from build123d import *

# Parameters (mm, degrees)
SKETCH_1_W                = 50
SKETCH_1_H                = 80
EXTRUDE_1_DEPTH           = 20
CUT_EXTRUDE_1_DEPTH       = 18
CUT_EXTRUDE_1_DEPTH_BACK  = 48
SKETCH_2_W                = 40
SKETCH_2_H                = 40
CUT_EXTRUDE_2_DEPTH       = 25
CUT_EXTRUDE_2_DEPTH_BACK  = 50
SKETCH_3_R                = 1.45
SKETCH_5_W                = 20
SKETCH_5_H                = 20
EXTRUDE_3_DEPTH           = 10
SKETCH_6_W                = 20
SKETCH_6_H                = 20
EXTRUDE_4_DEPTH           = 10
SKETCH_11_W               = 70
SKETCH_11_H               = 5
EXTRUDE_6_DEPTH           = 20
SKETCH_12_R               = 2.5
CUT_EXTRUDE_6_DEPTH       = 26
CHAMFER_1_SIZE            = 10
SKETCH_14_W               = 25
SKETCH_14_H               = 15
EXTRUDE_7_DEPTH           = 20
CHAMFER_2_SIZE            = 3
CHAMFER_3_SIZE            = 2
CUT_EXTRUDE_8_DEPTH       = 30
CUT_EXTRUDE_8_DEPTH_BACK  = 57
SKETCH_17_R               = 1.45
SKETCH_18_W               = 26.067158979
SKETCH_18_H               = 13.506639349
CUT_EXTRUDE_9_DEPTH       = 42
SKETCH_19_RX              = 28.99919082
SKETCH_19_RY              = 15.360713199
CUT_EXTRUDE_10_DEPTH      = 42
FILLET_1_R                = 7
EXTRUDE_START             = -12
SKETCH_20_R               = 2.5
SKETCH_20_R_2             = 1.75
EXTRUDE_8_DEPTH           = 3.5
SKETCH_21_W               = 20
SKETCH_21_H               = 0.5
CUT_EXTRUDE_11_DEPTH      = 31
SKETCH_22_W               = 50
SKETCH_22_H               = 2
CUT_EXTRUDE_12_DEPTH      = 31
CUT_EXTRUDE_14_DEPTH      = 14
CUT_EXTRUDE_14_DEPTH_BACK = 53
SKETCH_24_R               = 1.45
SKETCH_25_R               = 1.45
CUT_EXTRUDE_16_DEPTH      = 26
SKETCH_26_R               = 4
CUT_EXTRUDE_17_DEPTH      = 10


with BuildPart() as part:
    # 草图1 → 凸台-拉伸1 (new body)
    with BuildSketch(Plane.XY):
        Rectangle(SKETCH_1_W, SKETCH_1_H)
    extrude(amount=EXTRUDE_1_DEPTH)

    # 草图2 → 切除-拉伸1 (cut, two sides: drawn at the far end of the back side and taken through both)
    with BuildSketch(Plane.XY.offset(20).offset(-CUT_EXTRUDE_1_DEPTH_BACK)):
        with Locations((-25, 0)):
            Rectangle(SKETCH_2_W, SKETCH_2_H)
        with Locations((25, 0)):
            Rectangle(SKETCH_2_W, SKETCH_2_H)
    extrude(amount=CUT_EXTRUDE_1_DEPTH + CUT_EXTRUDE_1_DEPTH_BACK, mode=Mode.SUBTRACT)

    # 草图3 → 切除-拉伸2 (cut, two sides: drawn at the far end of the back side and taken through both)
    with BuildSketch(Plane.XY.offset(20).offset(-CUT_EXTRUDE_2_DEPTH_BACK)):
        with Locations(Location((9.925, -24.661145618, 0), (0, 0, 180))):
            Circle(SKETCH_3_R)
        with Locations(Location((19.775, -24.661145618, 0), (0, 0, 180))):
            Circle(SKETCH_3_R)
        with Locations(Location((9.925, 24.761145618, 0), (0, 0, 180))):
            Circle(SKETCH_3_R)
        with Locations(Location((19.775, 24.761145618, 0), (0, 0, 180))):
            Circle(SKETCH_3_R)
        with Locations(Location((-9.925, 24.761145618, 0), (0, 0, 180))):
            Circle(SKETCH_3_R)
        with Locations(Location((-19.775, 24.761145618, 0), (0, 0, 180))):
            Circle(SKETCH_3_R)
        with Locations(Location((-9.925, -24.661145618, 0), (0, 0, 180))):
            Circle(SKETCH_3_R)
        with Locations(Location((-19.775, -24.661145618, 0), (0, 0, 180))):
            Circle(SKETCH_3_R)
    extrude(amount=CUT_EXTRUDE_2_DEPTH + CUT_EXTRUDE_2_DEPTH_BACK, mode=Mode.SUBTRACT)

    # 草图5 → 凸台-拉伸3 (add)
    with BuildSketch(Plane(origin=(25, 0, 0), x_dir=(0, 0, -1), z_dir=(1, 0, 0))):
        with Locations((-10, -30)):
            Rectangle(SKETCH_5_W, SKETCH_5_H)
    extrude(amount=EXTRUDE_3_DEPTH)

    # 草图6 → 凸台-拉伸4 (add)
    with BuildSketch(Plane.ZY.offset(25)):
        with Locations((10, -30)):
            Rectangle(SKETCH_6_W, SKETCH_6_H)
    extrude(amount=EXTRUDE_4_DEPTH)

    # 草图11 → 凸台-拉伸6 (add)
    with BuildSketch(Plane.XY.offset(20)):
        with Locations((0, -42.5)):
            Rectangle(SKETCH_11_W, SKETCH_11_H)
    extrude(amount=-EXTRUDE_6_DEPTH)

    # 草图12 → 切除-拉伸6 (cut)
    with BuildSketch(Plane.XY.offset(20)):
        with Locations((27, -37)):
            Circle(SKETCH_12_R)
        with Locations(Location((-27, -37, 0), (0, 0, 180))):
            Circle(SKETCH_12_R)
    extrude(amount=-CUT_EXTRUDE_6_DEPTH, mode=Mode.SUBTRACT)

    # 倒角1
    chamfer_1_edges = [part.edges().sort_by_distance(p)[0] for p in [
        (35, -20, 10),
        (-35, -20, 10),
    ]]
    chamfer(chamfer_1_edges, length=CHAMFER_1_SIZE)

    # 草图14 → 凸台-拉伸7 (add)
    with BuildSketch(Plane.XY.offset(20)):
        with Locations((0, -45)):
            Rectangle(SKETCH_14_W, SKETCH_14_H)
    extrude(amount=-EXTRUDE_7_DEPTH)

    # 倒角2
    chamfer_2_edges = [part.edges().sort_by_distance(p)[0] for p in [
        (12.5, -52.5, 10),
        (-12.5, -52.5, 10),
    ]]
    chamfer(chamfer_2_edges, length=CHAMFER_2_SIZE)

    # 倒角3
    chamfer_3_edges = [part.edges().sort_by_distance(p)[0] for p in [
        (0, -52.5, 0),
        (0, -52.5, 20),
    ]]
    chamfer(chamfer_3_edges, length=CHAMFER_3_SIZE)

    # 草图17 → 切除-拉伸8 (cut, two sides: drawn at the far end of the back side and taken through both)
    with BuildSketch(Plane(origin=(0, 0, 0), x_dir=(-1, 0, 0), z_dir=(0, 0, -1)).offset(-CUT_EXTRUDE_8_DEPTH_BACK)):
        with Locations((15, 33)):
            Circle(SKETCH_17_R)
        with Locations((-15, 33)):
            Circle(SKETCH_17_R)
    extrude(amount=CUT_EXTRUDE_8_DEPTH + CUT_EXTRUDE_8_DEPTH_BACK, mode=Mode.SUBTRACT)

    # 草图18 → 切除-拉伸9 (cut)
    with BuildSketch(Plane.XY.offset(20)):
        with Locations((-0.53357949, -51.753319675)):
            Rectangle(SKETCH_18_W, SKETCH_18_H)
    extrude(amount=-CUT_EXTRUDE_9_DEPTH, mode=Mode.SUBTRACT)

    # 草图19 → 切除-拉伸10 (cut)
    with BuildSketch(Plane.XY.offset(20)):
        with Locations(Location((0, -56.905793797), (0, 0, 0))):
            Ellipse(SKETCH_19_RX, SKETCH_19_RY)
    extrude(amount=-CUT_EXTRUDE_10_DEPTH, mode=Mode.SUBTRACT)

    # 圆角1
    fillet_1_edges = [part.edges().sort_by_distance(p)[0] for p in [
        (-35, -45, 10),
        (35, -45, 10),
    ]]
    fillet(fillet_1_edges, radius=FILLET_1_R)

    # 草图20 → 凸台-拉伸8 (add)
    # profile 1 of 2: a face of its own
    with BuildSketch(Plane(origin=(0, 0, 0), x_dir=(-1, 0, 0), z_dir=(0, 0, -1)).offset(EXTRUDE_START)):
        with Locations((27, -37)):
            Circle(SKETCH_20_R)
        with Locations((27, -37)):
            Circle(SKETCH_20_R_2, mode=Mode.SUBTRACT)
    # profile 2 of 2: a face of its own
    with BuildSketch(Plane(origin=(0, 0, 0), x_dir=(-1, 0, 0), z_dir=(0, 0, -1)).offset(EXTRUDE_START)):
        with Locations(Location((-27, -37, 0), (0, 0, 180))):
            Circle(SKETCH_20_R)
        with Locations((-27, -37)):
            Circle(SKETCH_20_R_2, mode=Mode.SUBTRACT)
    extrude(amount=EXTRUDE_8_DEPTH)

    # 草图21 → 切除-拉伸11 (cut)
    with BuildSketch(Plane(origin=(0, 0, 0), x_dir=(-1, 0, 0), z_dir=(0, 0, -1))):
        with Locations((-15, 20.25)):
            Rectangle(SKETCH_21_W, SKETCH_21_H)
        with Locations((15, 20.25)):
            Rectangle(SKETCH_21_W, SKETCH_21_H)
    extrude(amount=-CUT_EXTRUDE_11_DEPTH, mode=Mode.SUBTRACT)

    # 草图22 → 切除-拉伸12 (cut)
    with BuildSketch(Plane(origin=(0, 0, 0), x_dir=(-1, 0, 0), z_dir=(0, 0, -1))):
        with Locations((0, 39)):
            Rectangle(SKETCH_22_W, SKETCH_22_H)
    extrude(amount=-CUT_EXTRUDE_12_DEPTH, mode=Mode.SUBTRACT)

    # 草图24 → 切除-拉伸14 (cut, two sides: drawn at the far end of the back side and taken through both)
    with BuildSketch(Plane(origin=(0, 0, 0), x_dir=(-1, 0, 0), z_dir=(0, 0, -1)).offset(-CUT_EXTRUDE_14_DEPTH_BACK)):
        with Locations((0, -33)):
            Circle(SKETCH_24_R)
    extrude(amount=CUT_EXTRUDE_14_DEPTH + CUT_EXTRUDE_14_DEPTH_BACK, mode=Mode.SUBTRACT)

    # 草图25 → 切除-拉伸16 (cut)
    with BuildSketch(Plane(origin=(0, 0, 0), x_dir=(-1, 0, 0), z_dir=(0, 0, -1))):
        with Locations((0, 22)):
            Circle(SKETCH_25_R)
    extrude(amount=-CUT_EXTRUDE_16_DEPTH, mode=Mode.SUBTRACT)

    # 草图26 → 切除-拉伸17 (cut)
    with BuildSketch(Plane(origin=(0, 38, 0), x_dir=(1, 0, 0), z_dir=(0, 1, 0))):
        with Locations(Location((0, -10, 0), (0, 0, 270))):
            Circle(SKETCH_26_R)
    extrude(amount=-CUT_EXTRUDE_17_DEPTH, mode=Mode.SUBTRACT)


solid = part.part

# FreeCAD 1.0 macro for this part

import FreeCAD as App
import Part
import Sketcher
Q = App.Units.Quantity


def edges_at(feature, points):
    """Names of the edges that pass closest to the given points."""
    edges = feature.Shape.Edges
    near = lambda p: min(range(len(edges)), key=lambda i: edges[i].distToShape(Part.Vertex(*p))[0])
    return sorted({f"Edge{near(p) + 1}" for p in points})


def add_polygon(sketch, points):
    """Adds a closed chain of lines whose ends are joined by coincident constraints."""
    first, n = sketch.GeometryCount, len(points)
    for a, b in zip(points, points[1:] + points[:1]):
        sketch.addGeometry(Part.LineSegment(App.Vector(*a, 0), App.Vector(*b, 0)), False)
    for i in range(n):
        sketch.addConstraint(Sketcher.Constraint("Coincident", first + i, 2, first + (i + 1) % n, 1))

doc = App.newDocument("Part")
body = doc.addObject("PartDesign::Body", "Body")

# Sketch on XY plane
sketch1 = body.newObject("Sketcher::SketchObject", "Sketch")
sketch1.AttachmentSupport = (doc.getObject("XY_Plane"), [""])
sketch1.MapMode = "FlatFace"
add_polygon(sketch1, [(-25, 40), (-25, -40), (25, -40), (25, 40)])  # lines 0-3
sketch1.addConstraint(Sketcher.Constraint("Vertical", 0))
sketch1.addConstraint(Sketcher.Constraint("Horizontal", 1))
sketch1.addConstraint(Sketcher.Constraint("Vertical", 2))
sketch1.addConstraint(Sketcher.Constraint("Horizontal", 3))
sketch1.addConstraint(Sketcher.Constraint("Symmetric", 0, 2, 2, 2, -1, 1))
sketch1.addConstraint(Sketcher.Constraint("DistanceX", 1, 1, 1, 2, Q("50 mm")))
sketch1.addConstraint(Sketcher.Constraint("DistanceY", 0, 2, 0, 1, Q("80 mm")))
pad1 = body.newObject("PartDesign::Pad", "Pad")
pad1.Profile = sketch1
pad1.Length = 20

# Sketch on XY plane
sketch2 = body.newObject("Sketcher::SketchObject", "Sketch001")
sketch2.AttachmentSupport = (doc.getObject("XY_Plane"), [""])
sketch2.MapMode = "FlatFace"
sketch2.AttachmentOffset = App.Placement(App.Vector(0, 0, 20), App.Rotation())
add_polygon(sketch2, [(-45, 20), (-45, -20), (-5, -20), (-5, 20)])  # lines 0-3
add_polygon(sketch2, [(5, 20), (5, -20), (45, -20), (45, 20)])  # lines 4-7
sketch2.addConstraint(Sketcher.Constraint("Vertical", 0))
sketch2.addConstraint(Sketcher.Constraint("Horizontal", 1))
sketch2.addConstraint(Sketcher.Constraint("Vertical", 2))
sketch2.addConstraint(Sketcher.Constraint("Horizontal", 3))
sketch2.addConstraint(Sketcher.Constraint("Vertical", 4))
sketch2.addConstraint(Sketcher.Constraint("Horizontal", 5))
sketch2.addConstraint(Sketcher.Constraint("Vertical", 6))
sketch2.addConstraint(Sketcher.Constraint("Horizontal", 7))
sketch2.addConstraint(Sketcher.Constraint("Symmetric", 2, 2, 4, 2, -1, 1))
sketch2.addConstraint(Sketcher.Constraint("Symmetric", 0, 2, 6, 2, -1, 1))
sketch2.addConstraint(Sketcher.Constraint("Horizontal", 1, 2, 4, 2))
sketch2.addConstraint(Sketcher.Constraint("Equal", 7, 0))
sketch2.addConstraint(Sketcher.Constraint("DistanceX", 1, 1, 1, 2, Q("40 mm")))
sketch2.addConstraint(Sketcher.Constraint("DistanceX", 0, 2, -1, 1, Q("45 mm")))
pocket1 = body.newObject("PartDesign::Pocket", "Pocket")
pocket1.Profile = sketch2
pocket1.Type = "ThroughAll"
pocket1.Midplane = True

# Sketch on XY plane
sketch3 = body.newObject("Sketcher::SketchObject", "Sketch002")
sketch3.AttachmentSupport = (doc.getObject("XY_Plane"), [""])
sketch3.MapMode = "FlatFace"
sketch3.AttachmentOffset = App.Placement(App.Vector(0, 0, 20), App.Rotation())
sketch3.addGeometry(Part.Circle(App.Vector(9.925, -24.661146, 0), App.Vector(0, 0, 1), 1.45), False)
sketch3.addGeometry(Part.Circle(App.Vector(19.775, -24.661146, 0), App.Vector(0, 0, 1), 1.45), False)
sketch3.addGeometry(Part.Circle(App.Vector(9.925, 24.761146, 0), App.Vector(0, 0, 1), 1.45), False)
sketch3.addGeometry(Part.Circle(App.Vector(19.775, 24.761146, 0), App.Vector(0, 0, 1), 1.45), False)
sketch3.addGeometry(Part.Circle(App.Vector(-9.925, 24.761146, 0), App.Vector(0, 0, 1), 1.45), False)
sketch3.addGeometry(Part.Circle(App.Vector(-19.775, 24.761146, 0), App.Vector(0, 0, 1), 1.45), False)
sketch3.addGeometry(Part.Circle(App.Vector(-9.925, -24.661146, 0), App.Vector(0, 0, 1), 1.45), False)
sketch3.addGeometry(Part.Circle(App.Vector(-19.775, -24.661146, 0), App.Vector(0, 0, 1), 1.45), False)
sketch3.addConstraint(Sketcher.Constraint("Equal", 0, 1))
sketch3.addConstraint(Sketcher.Constraint("Equal", 1, 2))
sketch3.addConstraint(Sketcher.Constraint("Equal", 2, 3))
sketch3.addConstraint(Sketcher.Constraint("Equal", 3, 4))
sketch3.addConstraint(Sketcher.Constraint("Equal", 4, 5))
sketch3.addConstraint(Sketcher.Constraint("Equal", 5, 6))
sketch3.addConstraint(Sketcher.Constraint("Equal", 6, 7))
sketch3.addConstraint(Sketcher.Constraint("Symmetric", 2, 3, 4, 3, -2))
sketch3.addConstraint(Sketcher.Constraint("Symmetric", 3, 3, 5, 3, -2))
sketch3.addConstraint(Sketcher.Constraint("Symmetric", 0, 3, 6, 3, -2))
sketch3.addConstraint(Sketcher.Constraint("Symmetric", 1, 3, 7, 3, -2))
sketch3.addConstraint(Sketcher.Constraint("Horizontal", 0, 3, 1, 3))
sketch3.addConstraint(Sketcher.Constraint("Horizontal", 2, 3, 3, 3))
sketch3.addConstraint(Sketcher.Constraint("Vertical", 0, 3, 2, 3))
sketch3.addConstraint(Sketcher.Constraint("Vertical", 1, 3, 3, 3))
sketch3.addConstraint(Sketcher.Constraint("Diameter", 0, Q("2.9 mm")))
sketch3.addConstraint(Sketcher.Constraint("DistanceX", 4, 3, 3, 3, Q("29.7 mm")))
sketch3.addConstraint(Sketcher.Constraint("DistanceX", 0, 3, 1, 3, Q("9.85 mm")))
sketch3.addConstraint(Sketcher.Constraint("DistanceY", 0, 3, 2, 3, Q("49.422291 mm")))
sketch3.addConstraint(Sketcher.Constraint("DistanceY", 0, 3, -1, 1, Q("24.661146 mm")))
pocket2 = body.newObject("PartDesign::Pocket", "Pocket001")
pocket2.Profile = sketch3
pocket2.Type = "ThroughAll"
pocket2.Midplane = True

# Sketch on YZ plane
sketch4 = body.newObject("Sketcher::SketchObject", "Sketch003")
sketch4.AttachmentSupport = (doc.getObject("YZ_Plane"), [""])
sketch4.MapMode = "FlatFace"
sketch4.AttachmentOffset = App.Placement(App.Vector(0, 0, 25), App.Rotation())
add_polygon(sketch4, [(-20, 20), (-40, 20), (-40, 0), (-20, 0)])  # lines 0-3
sketch4.addConstraint(Sketcher.Constraint("Horizontal", 0))
sketch4.addConstraint(Sketcher.Constraint("Vertical", 1))
sketch4.addConstraint(Sketcher.Constraint("Horizontal", 2))
sketch4.addConstraint(Sketcher.Constraint("Vertical", 3))
sketch4.addConstraint(Sketcher.Constraint("PointOnObject", 1, 2, -1))
sketch4.addConstraint(Sketcher.Constraint("Equal", 2, 1))
sketch4.addConstraint(Sketcher.Constraint("DistanceX", 0, 2, 0, 1, Q("20 mm")))
sketch4.addConstraint(Sketcher.Constraint("DistanceX", 0, 2, -1, 1, Q("40 mm")))
pad2 = body.newObject("PartDesign::Pad", "Pad001")
pad2.Profile = sketch4
pad2.Length = 10

# Sketch on YZ plane
sketch5 = body.newObject("Sketcher::SketchObject", "Sketch004")
sketch5.AttachmentSupport = (doc.getObject("YZ_Plane"), [""])
sketch5.MapMode = "FlatFace"
sketch5.AttachmentOffset = App.Placement(App.Vector(0, 0, -25), App.Rotation())
add_polygon(sketch5, [(-20, 0), (-40, 0), (-40, 20), (-20, 20)])  # lines 0-3
sketch5.addConstraint(Sketcher.Constraint("Horizontal", 0))
sketch5.addConstraint(Sketcher.Constraint("Vertical", 1))
sketch5.addConstraint(Sketcher.Constraint("Horizontal", 2))
sketch5.addConstraint(Sketcher.Constraint("Vertical", 3))
sketch5.addConstraint(Sketcher.Constraint("PointOnObject", 0, 2, -1))
sketch5.addConstraint(Sketcher.Constraint("Equal", 2, 1))
sketch5.addConstraint(Sketcher.Constraint("DistanceX", 0, 2, 0, 1, Q("20 mm")))
sketch5.addConstraint(Sketcher.Constraint("DistanceX", 0, 2, -1, 1, Q("40 mm")))
pad3 = body.newObject("PartDesign::Pad", "Pad002")
pad3.Profile = sketch5
pad3.Length = 10
pad3.Reversed = True

# Sketch on XY plane
sketch6 = body.newObject("Sketcher::SketchObject", "Sketch005")
sketch6.AttachmentSupport = (doc.getObject("XY_Plane"), [""])
sketch6.MapMode = "FlatFace"
sketch6.AttachmentOffset = App.Placement(App.Vector(0, 0, 20), App.Rotation())
add_polygon(sketch6, [(-35, -40), (-35, -45), (35, -45), (35, -40)])  # lines 0-3
sketch6.addConstraint(Sketcher.Constraint("Vertical", 0))
sketch6.addConstraint(Sketcher.Constraint("Horizontal", 1))
sketch6.addConstraint(Sketcher.Constraint("Vertical", 2))
sketch6.addConstraint(Sketcher.Constraint("Horizontal", 3))
sketch6.addConstraint(Sketcher.Constraint("DistanceX", 1, 1, 1, 2, Q("70 mm")))
sketch6.addConstraint(Sketcher.Constraint("DistanceY", 0, 2, 0, 1, Q("5 mm")))
sketch6.addConstraint(Sketcher.Constraint("DistanceX", 0, 2, -1, 1, Q("35 mm")))
sketch6.addConstraint(Sketcher.Constraint("DistanceY", 0, 2, -1, 1, Q("45 mm")))
pad4 = body.newObject("PartDesign::Pad", "Pad003")
pad4.Profile = sketch6
pad4.Length = 20
pad4.Reversed = True

# Sketch on XY plane
sketch7 = body.newObject("Sketcher::SketchObject", "Sketch006")
sketch7.AttachmentSupport = (doc.getObject("XY_Plane"), [""])
sketch7.MapMode = "FlatFace"
sketch7.AttachmentOffset = App.Placement(App.Vector(0, 0, 20), App.Rotation())
sketch7.addGeometry(Part.Circle(App.Vector(27, -37, 0), App.Vector(0, 0, 1), 2.5), False)
sketch7.addGeometry(Part.Circle(App.Vector(-27, -37, 0), App.Vector(0, 0, 1), 2.5), False)
sketch7.addConstraint(Sketcher.Constraint("Equal", 0, 1))
sketch7.addConstraint(Sketcher.Constraint("Symmetric", 0, 3, 1, 3, -2))
sketch7.addConstraint(Sketcher.Constraint("Diameter", 0, Q("5 mm")))
sketch7.addConstraint(Sketcher.Constraint("DistanceX", -1, 1, 0, 3, Q("27 mm")))
sketch7.addConstraint(Sketcher.Constraint("DistanceY", 0, 3, -1, 1, Q("37 mm")))
pocket3 = body.newObject("PartDesign::Pocket", "Pocket002")
pocket3.Profile = sketch7
pocket3.Length = 26
doc.recompute()

chamfer = body.newObject("PartDesign::Chamfer", "Chamfer")
chamfer.Base = (pocket3, edges_at(pocket3, [(35, -20, 10), (-35, -20, 10)]))
chamfer.Size = 10

# Sketch on XY plane
sketch8 = body.newObject("Sketcher::SketchObject", "Sketch007")
sketch8.AttachmentSupport = (doc.getObject("XY_Plane"), [""])
sketch8.MapMode = "FlatFace"
sketch8.AttachmentOffset = App.Placement(App.Vector(0, 0, 20), App.Rotation())
add_polygon(sketch8, [(-12.5, -37.5), (-12.5, -52.5), (12.5, -52.5), (12.5, -37.5)])  # lines 0-3
sketch8.addConstraint(Sketcher.Constraint("Vertical", 0))
sketch8.addConstraint(Sketcher.Constraint("Horizontal", 1))
sketch8.addConstraint(Sketcher.Constraint("Vertical", 2))
sketch8.addConstraint(Sketcher.Constraint("Horizontal", 3))
sketch8.addConstraint(Sketcher.Constraint("DistanceX", 1, 1, 1, 2, Q("25 mm")))
sketch8.addConstraint(Sketcher.Constraint("DistanceY", 0, 2, 0, 1, Q("15 mm")))
sketch8.addConstraint(Sketcher.Constraint("DistanceX", 0, 2, -1, 1, Q("12.5 mm")))
sketch8.addConstraint(Sketcher.Constraint("DistanceY", 0, 2, -1, 1, Q("52.5 mm")))
pad5 = body.newObject("PartDesign::Pad", "Pad004")
pad5.Profile = sketch8
pad5.Length = 20
pad5.Reversed = True
doc.recompute()

chamfer2 = body.newObject("PartDesign::Chamfer", "Chamfer001")
chamfer2.Base = (pad5, edges_at(pad5, [(12.5, -52.5, 10), (-12.5, -52.5, 10)]))
chamfer2.Size = 3
doc.recompute()

chamfer3 = body.newObject("PartDesign::Chamfer", "Chamfer002")
chamfer3.Base = (chamfer2, edges_at(chamfer2, [(0, -52.5, 0), (0, -52.5, 20)]))
chamfer3.Size = 2

# Sketch on XY plane
sketch9 = body.newObject("Sketcher::SketchObject", "Sketch008")
sketch9.AttachmentSupport = (doc.getObject("XY_Plane"), [""])
sketch9.MapMode = "FlatFace"
sketch9.addGeometry(Part.Circle(App.Vector(-15, 33, 0), App.Vector(0, 0, 1), 1.45), False)
sketch9.addGeometry(Part.Circle(App.Vector(15, 33, 0), App.Vector(0, 0, 1), 1.45), False)
sketch9.addConstraint(Sketcher.Constraint("Equal", 0, 1))
sketch9.addConstraint(Sketcher.Constraint("Symmetric", 0, 3, 1, 3, -2))
sketch9.addConstraint(Sketcher.Constraint("Diameter", 0, Q("2.9 mm")))
sketch9.addConstraint(Sketcher.Constraint("DistanceX", 0, 3, -1, 1, Q("15 mm")))
sketch9.addConstraint(Sketcher.Constraint("DistanceY", -1, 1, 0, 3, Q("33 mm")))
pocket4 = body.newObject("PartDesign::Pocket", "Pocket003")
pocket4.Profile = sketch9
pocket4.Type = "ThroughAll"
pocket4.Midplane = True

# Sketch on XY plane
sketch10 = body.newObject("Sketcher::SketchObject", "Sketch009")
sketch10.AttachmentSupport = (doc.getObject("XY_Plane"), [""])
sketch10.MapMode = "FlatFace"
sketch10.AttachmentOffset = App.Placement(App.Vector(0, 0, 20), App.Rotation())
add_polygon(sketch10, [(-13.567159, -45), (-13.567159, -58.506639), (12.5, -58.506639), (12.5, -45)])  # lines 0-3
sketch10.addConstraint(Sketcher.Constraint("Vertical", 0))
sketch10.addConstraint(Sketcher.Constraint("Horizontal", 1))
sketch10.addConstraint(Sketcher.Constraint("Vertical", 2))
sketch10.addConstraint(Sketcher.Constraint("Horizontal", 3))
sketch10.addConstraint(Sketcher.Constraint("DistanceY", 2, 2, -1, 1, Q("45 mm")))
sketch10.addConstraint(Sketcher.Constraint("DistanceX", -1, 1, 1, 2, Q("12.5 mm")))
sketch10.addConstraint(Sketcher.Constraint("DistanceX", 1, 1, 1, 2, Q("26.067159 mm")))
sketch10.addConstraint(Sketcher.Constraint("DistanceY", 0, 2, 0, 1, Q("13.506639 mm")))
pocket5 = body.newObject("PartDesign::Pocket", "Pocket004")
pocket5.Profile = sketch10
pocket5.Length = 42

# Sketch on XY plane
sketch11 = body.newObject("Sketcher::SketchObject", "Sketch010")
sketch11.AttachmentSupport = (doc.getObject("XY_Plane"), [""])
sketch11.MapMode = "FlatFace"
sketch11.AttachmentOffset = App.Placement(App.Vector(0, 0, 20), App.Rotation())
sketch11.addGeometry(Part.Ellipse(App.Vector(28.999191, -56.905794, 0), App.Vector(0, -41.545081, 0), App.Vector(0, -56.905794, 0)), False)
sketch11.addConstraint(Sketcher.Constraint("Block", 0))
pocket6 = body.newObject("PartDesign::Pocket", "Pocket005")
pocket6.Profile = sketch11
pocket6.Length = 42
doc.recompute()

fillet = body.newObject("PartDesign::Fillet", "Fillet")
fillet.Base = (pocket6, edges_at(pocket6, [(-35, -45, 10), (35, -45, 10)]))
fillet.Radius = 7

# Sketch on XY plane
sketch12 = body.newObject("Sketcher::SketchObject", "Sketch011")
sketch12.AttachmentSupport = (doc.getObject("XY_Plane"), [""])
sketch12.MapMode = "FlatFace"
sketch12.AttachmentOffset = App.Placement(App.Vector(0, 0, 12), App.Rotation())
sketch12.addGeometry(Part.Circle(App.Vector(-27, -37, 0), App.Vector(0, 0, 1), 2.5), False)
sketch12.addGeometry(Part.Circle(App.Vector(-27, -37, 0), App.Vector(0, 0, 1), 1.75), False)
sketch12.addGeometry(Part.Circle(App.Vector(27, -37, 0), App.Vector(0, 0, 1), 2.5), False)
sketch12.addGeometry(Part.Circle(App.Vector(27, -37, 0), App.Vector(0, 0, 1), 1.75), False)
sketch12.addConstraint(Sketcher.Constraint("Coincident", 1, 3, 0, 3))
sketch12.addConstraint(Sketcher.Constraint("Coincident", 3, 3, 2, 3))
sketch12.addConstraint(Sketcher.Constraint("Equal", 0, 2))
sketch12.addConstraint(Sketcher.Constraint("Equal", 1, 3))
sketch12.addConstraint(Sketcher.Constraint("Symmetric", 0, 3, 2, 3, -2))
sketch12.addConstraint(Sketcher.Constraint("Diameter", 0, Q("5 mm")))
sketch12.addConstraint(Sketcher.Constraint("Diameter", 1, Q("3.5 mm")))
sketch12.addConstraint(Sketcher.Constraint("DistanceX", 0, 3, -1, 1, Q("27 mm")))
sketch12.addConstraint(Sketcher.Constraint("DistanceY", 0, 3, -1, 1, Q("37 mm")))
pad6 = body.newObject("PartDesign::Pad", "Pad005")
pad6.Profile = sketch12
pad6.Length = 3.5
pad6.Reversed = True

# Sketch on XY plane
sketch13 = body.newObject("Sketcher::SketchObject", "Sketch012")
sketch13.AttachmentSupport = (doc.getObject("XY_Plane"), [""])
sketch13.MapMode = "FlatFace"
add_polygon(sketch13, [(25, 20.5), (25, 20), (5, 20), (5, 20.5)])  # lines 0-3
add_polygon(sketch13, [(-5, 20.5), (-5, 20), (-25, 20), (-25, 20.5)])  # lines 4-7
sketch13.addConstraint(Sketcher.Constraint("Vertical", 0))
sketch13.addConstraint(Sketcher.Constraint("Horizontal", 1))
sketch13.addConstraint(Sketcher.Constraint("Vertical", 2))
sketch13.addConstraint(Sketcher.Constraint("Horizontal", 3))
sketch13.addConstraint(Sketcher.Constraint("Vertical", 4))
sketch13.addConstraint(Sketcher.Constraint("Horizontal", 5))
sketch13.addConstraint(Sketcher.Constraint("Vertical", 6))
sketch13.addConstraint(Sketcher.Constraint("Horizontal", 7))
sketch13.addConstraint(Sketcher.Constraint("Symmetric", 1, 2, 4, 2, -2))
sketch13.addConstraint(Sketcher.Constraint("Symmetric", 3, 2, 6, 2, -2))
sketch13.addConstraint(Sketcher.Constraint("DistanceX", 1, 2, 1, 1, Q("20 mm")))
sketch13.addConstraint(Sketcher.Constraint("DistanceY", 0, 2, 0, 1, Q("0.5 mm")))
sketch13.addConstraint(Sketcher.Constraint("DistanceX", -1, 1, 0, 2, Q("25 mm")))
sketch13.addConstraint(Sketcher.Constraint("DistanceY", -1, 1, 0, 2, Q("20 mm")))
pocket7 = body.newObject("PartDesign::Pocket", "Pocket006")
pocket7.Profile = sketch13
pocket7.Length = 31
pocket7.Reversed = True

# Sketch on XY plane
sketch14 = body.newObject("Sketcher::SketchObject", "Sketch013")
sketch14.AttachmentSupport = (doc.getObject("XY_Plane"), [""])
sketch14.MapMode = "FlatFace"
add_polygon(sketch14, [(25, 40), (25, 38), (-25, 38), (-25, 40)])  # lines 0-3
sketch14.addConstraint(Sketcher.Constraint("Vertical", 0))
sketch14.addConstraint(Sketcher.Constraint("Horizontal", 1))
sketch14.addConstraint(Sketcher.Constraint("Vertical", 2))
sketch14.addConstraint(Sketcher.Constraint("Horizontal", 3))
sketch14.addConstraint(Sketcher.Constraint("DistanceX", 1, 2, 1, 1, Q("50 mm")))
sketch14.addConstraint(Sketcher.Constraint("DistanceY", 0, 2, 0, 1, Q("2 mm")))
sketch14.addConstraint(Sketcher.Constraint("DistanceX", -1, 1, 0, 2, Q("25 mm")))
sketch14.addConstraint(Sketcher.Constraint("DistanceY", -1, 1, 0, 2, Q("38 mm")))
pocket8 = body.newObject("PartDesign::Pocket", "Pocket007")
pocket8.Profile = sketch14
pocket8.Length = 31
pocket8.Reversed = True

# Sketch on XY plane
sketch15 = body.newObject("Sketcher::SketchObject", "Sketch014")
sketch15.AttachmentSupport = (doc.getObject("XY_Plane"), [""])
sketch15.MapMode = "FlatFace"
sketch15.addGeometry(Part.Circle(App.Vector(0, -33, 0), App.Vector(0, 0, 1), 1.45), False)
sketch15.addConstraint(Sketcher.Constraint("PointOnObject", 0, 3, -2))
sketch15.addConstraint(Sketcher.Constraint("Diameter", 0, Q("2.9 mm")))
sketch15.addConstraint(Sketcher.Constraint("DistanceY", 0, 3, -1, 1, Q("33 mm")))
pocket9 = body.newObject("PartDesign::Pocket", "Pocket008")
pocket9.Profile = sketch15
pocket9.Type = "ThroughAll"
pocket9.Midplane = True

# Sketch on XY plane
sketch16 = body.newObject("Sketcher::SketchObject", "Sketch015")
sketch16.AttachmentSupport = (doc.getObject("XY_Plane"), [""])
sketch16.MapMode = "FlatFace"
sketch16.addGeometry(Part.Circle(App.Vector(0, 22, 0), App.Vector(0, 0, 1), 1.45), False)
sketch16.addConstraint(Sketcher.Constraint("PointOnObject", 0, 3, -2))
sketch16.addConstraint(Sketcher.Constraint("Diameter", 0, Q("2.9 mm")))
sketch16.addConstraint(Sketcher.Constraint("DistanceY", -1, 1, 0, 3, Q("22 mm")))
pocket10 = body.newObject("PartDesign::Pocket", "Pocket009")
pocket10.Profile = sketch16
pocket10.Length = 26
pocket10.Reversed = True

# Sketch on XZ plane
sketch17 = body.newObject("Sketcher::SketchObject", "Sketch016")
sketch17.AttachmentSupport = (doc.getObject("XZ_Plane"), [""])
sketch17.MapMode = "FlatFace"
sketch17.AttachmentOffset = App.Placement(App.Vector(0, 0, -38), App.Rotation())
sketch17.addGeometry(Part.Circle(App.Vector(0, 10, 0), App.Vector(0, 0, 1), 4), False)
sketch17.addConstraint(Sketcher.Constraint("PointOnObject", 0, 3, -2))
sketch17.addConstraint(Sketcher.Constraint("Diameter", 0, Q("8 mm")))
sketch17.addConstraint(Sketcher.Constraint("DistanceY", -1, 1, 0, 3, Q("10 mm")))
pocket11 = body.newObject("PartDesign::Pocket", "Pocket010")
pocket11.Profile = sketch17
pocket11.Length = 10
pocket11.Reversed = True

doc.recompute()
